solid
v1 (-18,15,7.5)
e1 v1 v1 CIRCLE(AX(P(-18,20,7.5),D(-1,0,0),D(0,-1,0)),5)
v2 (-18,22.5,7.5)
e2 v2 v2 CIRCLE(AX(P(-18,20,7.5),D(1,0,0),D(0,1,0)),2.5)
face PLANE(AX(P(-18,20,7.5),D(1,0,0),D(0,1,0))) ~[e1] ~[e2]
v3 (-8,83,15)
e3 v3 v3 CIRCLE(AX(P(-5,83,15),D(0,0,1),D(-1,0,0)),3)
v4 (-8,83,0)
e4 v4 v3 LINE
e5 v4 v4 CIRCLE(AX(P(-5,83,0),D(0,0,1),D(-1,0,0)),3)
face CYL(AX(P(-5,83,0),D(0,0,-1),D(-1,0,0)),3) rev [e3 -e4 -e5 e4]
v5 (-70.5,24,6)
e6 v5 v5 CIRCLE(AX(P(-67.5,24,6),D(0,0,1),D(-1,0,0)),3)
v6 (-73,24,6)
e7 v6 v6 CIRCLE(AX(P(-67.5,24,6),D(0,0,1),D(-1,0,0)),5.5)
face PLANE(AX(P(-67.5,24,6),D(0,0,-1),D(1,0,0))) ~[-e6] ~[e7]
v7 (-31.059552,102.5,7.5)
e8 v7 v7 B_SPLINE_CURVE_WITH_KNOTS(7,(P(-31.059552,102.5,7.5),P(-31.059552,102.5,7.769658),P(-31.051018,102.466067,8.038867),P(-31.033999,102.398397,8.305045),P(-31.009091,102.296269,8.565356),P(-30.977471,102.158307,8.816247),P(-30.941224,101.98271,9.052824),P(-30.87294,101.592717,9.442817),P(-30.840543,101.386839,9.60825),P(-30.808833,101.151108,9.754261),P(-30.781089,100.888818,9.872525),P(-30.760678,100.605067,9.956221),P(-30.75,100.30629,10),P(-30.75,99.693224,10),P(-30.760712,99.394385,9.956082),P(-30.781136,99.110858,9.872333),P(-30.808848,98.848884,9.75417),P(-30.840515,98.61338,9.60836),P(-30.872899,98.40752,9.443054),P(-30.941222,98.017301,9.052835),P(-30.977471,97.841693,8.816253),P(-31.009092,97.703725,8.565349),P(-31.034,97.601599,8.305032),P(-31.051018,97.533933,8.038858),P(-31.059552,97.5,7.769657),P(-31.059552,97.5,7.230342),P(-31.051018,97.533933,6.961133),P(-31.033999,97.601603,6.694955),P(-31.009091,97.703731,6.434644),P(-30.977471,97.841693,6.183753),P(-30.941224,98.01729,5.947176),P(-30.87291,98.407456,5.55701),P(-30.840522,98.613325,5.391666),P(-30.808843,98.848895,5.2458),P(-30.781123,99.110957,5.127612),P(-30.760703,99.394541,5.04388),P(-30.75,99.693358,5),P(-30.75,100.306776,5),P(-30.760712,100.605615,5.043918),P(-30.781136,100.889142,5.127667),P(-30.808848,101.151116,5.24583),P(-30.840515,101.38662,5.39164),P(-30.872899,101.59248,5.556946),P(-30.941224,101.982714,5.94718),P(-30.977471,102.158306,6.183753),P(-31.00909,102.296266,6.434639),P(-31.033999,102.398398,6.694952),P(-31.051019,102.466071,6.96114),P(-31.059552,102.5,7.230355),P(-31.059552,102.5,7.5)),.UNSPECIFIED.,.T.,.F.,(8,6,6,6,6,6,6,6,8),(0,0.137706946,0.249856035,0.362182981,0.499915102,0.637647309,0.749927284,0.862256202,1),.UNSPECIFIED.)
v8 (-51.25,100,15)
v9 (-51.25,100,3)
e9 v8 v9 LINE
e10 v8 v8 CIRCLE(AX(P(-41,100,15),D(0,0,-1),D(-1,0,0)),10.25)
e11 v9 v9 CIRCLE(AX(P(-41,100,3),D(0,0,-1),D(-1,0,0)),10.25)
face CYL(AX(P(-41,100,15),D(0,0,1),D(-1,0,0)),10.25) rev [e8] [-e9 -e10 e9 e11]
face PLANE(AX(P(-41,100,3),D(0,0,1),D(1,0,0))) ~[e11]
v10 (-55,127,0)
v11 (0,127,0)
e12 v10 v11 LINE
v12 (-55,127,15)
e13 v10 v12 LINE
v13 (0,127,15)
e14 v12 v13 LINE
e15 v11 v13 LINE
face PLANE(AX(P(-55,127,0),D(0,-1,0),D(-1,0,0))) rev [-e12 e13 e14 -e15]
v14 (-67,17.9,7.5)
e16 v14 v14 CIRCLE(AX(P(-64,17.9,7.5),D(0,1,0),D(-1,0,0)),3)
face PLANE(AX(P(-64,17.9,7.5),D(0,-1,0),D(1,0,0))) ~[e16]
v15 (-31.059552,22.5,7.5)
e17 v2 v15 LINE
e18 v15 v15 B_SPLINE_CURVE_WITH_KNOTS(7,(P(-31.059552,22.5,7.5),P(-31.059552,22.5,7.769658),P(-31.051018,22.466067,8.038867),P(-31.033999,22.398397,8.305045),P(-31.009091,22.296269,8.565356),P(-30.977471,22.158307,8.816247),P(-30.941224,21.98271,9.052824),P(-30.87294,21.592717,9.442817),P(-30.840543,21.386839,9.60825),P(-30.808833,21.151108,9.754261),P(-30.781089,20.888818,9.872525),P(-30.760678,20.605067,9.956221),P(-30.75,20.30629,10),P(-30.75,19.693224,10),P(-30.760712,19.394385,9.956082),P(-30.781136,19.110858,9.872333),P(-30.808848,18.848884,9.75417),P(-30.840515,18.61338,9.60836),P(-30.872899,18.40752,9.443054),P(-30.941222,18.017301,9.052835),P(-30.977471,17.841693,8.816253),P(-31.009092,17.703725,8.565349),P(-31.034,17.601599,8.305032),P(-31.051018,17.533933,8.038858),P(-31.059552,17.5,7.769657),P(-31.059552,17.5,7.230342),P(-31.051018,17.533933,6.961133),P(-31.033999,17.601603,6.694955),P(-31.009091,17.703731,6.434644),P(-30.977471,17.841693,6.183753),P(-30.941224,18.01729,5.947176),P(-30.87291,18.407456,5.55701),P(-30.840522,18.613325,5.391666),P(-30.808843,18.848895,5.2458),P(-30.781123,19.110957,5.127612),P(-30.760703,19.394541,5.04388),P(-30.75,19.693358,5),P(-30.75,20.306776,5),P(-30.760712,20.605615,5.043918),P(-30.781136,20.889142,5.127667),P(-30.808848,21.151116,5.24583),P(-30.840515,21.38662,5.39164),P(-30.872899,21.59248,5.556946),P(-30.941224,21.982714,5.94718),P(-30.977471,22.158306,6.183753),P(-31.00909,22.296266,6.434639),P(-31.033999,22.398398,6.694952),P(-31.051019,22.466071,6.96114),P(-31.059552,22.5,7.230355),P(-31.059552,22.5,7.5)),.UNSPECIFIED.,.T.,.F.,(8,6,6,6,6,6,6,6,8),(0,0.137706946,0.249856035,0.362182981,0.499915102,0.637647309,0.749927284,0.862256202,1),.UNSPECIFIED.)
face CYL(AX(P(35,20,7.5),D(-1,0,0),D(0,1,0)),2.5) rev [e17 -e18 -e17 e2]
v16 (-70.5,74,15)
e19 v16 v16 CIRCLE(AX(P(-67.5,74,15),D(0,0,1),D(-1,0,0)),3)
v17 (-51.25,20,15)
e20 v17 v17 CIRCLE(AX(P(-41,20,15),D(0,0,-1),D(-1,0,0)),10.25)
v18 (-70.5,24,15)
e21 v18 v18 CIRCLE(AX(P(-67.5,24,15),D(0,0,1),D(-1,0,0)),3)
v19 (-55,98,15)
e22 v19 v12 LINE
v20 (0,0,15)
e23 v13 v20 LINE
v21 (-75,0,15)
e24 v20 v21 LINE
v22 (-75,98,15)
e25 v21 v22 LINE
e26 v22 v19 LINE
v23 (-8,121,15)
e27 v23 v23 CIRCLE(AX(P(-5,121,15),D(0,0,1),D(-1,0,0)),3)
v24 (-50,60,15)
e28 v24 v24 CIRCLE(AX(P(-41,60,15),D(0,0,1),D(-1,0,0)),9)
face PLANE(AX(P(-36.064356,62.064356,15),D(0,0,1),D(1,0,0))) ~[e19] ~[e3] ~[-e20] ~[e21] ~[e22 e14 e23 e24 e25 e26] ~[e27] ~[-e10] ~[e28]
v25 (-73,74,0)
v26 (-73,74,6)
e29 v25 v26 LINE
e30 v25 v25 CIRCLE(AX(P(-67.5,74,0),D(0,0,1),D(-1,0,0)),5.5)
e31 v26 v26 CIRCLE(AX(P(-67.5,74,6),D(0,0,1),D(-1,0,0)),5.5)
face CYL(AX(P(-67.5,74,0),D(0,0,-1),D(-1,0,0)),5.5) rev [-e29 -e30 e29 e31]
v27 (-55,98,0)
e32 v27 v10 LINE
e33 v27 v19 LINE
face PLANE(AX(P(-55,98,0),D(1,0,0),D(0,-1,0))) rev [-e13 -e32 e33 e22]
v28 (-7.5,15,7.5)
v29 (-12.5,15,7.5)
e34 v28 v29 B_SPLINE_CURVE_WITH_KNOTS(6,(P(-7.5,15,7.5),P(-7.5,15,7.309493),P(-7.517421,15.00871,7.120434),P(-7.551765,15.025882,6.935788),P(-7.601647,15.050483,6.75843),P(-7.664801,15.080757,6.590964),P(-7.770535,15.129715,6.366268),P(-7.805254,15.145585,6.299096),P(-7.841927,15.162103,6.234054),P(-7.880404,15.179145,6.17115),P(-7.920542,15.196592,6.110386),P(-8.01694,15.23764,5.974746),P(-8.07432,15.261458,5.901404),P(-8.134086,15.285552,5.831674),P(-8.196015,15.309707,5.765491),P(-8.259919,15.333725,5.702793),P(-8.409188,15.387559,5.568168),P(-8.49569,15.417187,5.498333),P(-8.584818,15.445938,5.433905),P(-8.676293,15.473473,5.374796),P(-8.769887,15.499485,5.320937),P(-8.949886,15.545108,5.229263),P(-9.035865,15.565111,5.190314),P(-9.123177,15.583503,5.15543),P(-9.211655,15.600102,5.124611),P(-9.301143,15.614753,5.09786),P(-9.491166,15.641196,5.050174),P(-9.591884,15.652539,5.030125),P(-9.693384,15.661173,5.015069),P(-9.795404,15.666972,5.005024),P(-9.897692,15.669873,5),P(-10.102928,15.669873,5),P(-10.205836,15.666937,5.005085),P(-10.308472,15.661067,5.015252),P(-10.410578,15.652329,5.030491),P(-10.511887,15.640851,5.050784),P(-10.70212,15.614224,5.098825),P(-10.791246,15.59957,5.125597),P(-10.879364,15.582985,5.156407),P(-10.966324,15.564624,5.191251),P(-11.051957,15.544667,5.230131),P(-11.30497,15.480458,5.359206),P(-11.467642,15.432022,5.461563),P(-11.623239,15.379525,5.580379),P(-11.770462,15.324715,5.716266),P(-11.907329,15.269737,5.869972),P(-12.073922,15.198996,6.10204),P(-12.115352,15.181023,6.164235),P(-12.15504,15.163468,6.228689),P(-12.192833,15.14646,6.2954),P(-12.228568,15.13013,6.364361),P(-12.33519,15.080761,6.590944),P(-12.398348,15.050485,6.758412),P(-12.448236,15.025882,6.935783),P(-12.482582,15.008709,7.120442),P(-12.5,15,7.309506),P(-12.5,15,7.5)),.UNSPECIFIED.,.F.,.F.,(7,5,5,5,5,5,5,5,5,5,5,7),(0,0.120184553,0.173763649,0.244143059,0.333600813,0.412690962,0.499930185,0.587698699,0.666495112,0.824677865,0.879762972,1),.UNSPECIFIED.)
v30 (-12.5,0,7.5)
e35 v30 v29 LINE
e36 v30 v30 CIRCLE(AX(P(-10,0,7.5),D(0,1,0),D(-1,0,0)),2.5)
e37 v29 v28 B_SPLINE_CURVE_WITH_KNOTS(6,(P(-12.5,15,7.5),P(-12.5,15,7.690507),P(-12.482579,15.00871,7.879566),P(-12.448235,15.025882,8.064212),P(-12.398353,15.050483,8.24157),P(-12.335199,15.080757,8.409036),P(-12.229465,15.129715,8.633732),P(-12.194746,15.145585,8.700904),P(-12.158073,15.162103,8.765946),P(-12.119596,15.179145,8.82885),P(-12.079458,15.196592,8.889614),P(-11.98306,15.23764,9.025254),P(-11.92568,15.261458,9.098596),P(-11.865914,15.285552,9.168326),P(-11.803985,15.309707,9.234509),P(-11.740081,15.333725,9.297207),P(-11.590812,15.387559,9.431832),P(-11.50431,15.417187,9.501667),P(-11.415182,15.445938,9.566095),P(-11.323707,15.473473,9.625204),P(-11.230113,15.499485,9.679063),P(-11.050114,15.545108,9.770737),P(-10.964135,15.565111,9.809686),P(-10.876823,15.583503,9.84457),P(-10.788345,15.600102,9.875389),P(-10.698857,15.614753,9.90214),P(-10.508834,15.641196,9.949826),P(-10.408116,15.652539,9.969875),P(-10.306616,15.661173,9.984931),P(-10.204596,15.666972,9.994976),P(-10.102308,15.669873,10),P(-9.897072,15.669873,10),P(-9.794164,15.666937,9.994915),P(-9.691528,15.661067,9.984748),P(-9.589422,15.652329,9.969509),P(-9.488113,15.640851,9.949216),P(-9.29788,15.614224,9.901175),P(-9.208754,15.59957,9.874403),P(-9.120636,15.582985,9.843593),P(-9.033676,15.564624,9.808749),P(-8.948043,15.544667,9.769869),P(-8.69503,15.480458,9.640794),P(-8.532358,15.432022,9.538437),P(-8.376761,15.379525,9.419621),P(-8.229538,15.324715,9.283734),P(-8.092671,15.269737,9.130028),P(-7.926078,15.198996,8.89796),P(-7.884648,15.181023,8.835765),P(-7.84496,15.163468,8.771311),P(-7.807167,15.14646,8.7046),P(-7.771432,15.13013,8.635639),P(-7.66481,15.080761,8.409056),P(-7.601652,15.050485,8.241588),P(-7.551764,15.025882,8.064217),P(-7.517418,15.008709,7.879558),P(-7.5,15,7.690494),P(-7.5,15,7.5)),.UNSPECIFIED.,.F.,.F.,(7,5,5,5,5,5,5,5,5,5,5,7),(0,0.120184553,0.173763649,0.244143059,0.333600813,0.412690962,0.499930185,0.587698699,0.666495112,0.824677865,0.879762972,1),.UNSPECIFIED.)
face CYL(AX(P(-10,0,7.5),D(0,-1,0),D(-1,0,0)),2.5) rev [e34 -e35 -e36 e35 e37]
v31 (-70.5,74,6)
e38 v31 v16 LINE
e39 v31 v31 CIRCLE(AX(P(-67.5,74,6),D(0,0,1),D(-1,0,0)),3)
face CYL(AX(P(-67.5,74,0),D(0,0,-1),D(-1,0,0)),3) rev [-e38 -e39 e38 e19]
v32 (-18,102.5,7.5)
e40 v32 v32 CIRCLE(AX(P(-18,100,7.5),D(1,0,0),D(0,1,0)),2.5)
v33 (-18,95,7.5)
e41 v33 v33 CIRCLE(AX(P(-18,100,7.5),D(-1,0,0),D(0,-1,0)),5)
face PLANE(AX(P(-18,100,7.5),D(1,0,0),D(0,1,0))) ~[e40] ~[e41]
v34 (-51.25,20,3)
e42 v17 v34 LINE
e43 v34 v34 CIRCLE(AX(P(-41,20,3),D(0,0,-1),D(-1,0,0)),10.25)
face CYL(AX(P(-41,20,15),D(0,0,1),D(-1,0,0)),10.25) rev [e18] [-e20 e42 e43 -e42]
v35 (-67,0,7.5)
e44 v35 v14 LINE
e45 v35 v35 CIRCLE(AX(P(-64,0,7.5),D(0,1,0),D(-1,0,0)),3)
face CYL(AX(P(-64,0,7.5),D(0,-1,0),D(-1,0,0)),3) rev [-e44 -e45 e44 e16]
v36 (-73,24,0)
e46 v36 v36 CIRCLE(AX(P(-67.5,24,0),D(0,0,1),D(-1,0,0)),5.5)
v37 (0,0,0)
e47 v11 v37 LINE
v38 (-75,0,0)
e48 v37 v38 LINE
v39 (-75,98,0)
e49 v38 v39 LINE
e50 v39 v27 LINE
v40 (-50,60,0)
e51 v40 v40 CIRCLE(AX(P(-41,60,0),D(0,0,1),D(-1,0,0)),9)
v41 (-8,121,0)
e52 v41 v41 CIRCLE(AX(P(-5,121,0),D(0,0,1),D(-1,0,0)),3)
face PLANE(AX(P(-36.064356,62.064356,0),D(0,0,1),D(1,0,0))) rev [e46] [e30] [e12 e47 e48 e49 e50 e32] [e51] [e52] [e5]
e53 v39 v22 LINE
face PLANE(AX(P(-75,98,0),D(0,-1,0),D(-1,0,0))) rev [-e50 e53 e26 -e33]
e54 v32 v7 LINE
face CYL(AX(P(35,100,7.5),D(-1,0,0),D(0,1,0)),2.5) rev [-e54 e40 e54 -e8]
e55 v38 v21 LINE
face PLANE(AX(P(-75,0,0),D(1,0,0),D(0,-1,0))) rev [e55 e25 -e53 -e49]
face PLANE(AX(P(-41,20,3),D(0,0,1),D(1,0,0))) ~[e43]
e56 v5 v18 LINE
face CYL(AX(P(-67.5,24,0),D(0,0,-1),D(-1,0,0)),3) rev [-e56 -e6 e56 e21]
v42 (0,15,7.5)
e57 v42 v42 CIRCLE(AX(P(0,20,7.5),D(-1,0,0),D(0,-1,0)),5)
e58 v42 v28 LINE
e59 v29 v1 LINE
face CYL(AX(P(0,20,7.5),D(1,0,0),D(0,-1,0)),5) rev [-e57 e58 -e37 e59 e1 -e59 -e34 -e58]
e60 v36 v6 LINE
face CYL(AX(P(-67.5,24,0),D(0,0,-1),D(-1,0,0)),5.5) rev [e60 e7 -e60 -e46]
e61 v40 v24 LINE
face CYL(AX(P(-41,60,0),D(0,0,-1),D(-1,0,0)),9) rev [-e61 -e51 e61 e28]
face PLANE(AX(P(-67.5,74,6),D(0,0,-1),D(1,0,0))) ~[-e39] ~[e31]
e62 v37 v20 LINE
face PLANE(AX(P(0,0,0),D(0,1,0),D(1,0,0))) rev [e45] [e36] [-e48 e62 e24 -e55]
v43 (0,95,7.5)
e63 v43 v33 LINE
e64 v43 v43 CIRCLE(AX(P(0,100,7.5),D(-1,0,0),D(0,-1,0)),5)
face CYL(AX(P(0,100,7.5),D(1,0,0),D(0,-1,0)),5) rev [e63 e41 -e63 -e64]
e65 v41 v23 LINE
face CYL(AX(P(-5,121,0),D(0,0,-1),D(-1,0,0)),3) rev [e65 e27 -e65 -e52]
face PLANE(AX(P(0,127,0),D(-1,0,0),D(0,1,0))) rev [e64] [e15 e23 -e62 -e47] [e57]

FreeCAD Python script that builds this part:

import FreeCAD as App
import Part
import Sketcher


def add_polygon(sketch, points):
    """Adds a closed chain of lines whose ends are joined by coincident constraints."""
    first, n = sketch.GeometryCount, len(points)
    for a, b in zip(points, points[1:] + points[:1]):
        sketch.addGeometry(Part.LineSegment(App.Vector(*a, 0), App.Vector(*b, 0)), False)
    for i in range(n):
        sketch.addConstraint(Sketcher.Constraint("Coincident", first + i, 2, first + (i + 1) % n, 1))

doc = App.newDocument("Part")
body = doc.addObject("PartDesign::Body", "Body")

# Sketch on XY plane
sketch1 = doc.addObject("Sketcher::SketchObject", "Sketch")
body.addObject(sketch1)
sketch1.AttachmentSupport = (doc.XY_Plane, [""])
sketch1.MapMode = "FlatFace"
add_polygon(sketch1, [(0, 127), (0, 0), (75, 0), (75, 98), (55, 98), (55, 127)])  # lines 0-5
sketch1.addConstraint(Sketcher.Constraint("Vertical", 0))
sketch1.addConstraint(Sketcher.Constraint("Horizontal", 1))
sketch1.addConstraint(Sketcher.Constraint("Vertical", 2))
sketch1.addConstraint(Sketcher.Constraint("Horizontal", 3))
sketch1.addConstraint(Sketcher.Constraint("Vertical", 4))
sketch1.addConstraint(Sketcher.Constraint("Horizontal", 5))
sketch1.addConstraint(Sketcher.Constraint("Coincident", 0, 2, -1, 1))
sketch1.addConstraint(Sketcher.Constraint("DistanceX", 1, 1, 1, 2, 75.0))
sketch1.addConstraint(Sketcher.Constraint("DistanceX", 3, 2, 3, 1, 20.0))
sketch1.addConstraint(Sketcher.Constraint("DistanceY", 0, 2, 0, 1, 127.0))
sketch1.addConstraint(Sketcher.Constraint("DistanceY", 2, 1, 2, 2, 98.0))
pad1 = doc.addObject("PartDesign::Pad", "Pad")
body.addObject(pad1)
pad1.Profile = sketch1
pad1.Length = 15

# Sketch on XY plane
sketch2 = doc.addObject("Sketcher::SketchObject", "Sketch001")
body.addObject(sketch2)
sketch2.AttachmentSupport = (doc.XY_Plane, [""])
sketch2.MapMode = "FlatFace"
sketch2.addGeometry(Part.Circle(App.Vector(5, 121, 0), App.Vector(0, 0, 1), 3), False)
sketch2.addGeometry(Part.Circle(App.Vector(5, 83, 0), App.Vector(0, 0, 1), 3), False)
sketch2.addGeometry(Part.Circle(App.Vector(41, 60, 0), App.Vector(0, 0, 1), 9), False)
sketch2.addGeometry(Part.Circle(App.Vector(67.5, 24, 0), App.Vector(0, 0, 1), 3), False)
sketch2.addGeometry(Part.Circle(App.Vector(67.5, 74, 0), App.Vector(0, 0, 1), 3), False)
sketch2.addConstraint(Sketcher.Constraint("Equal", 0, 1))
sketch2.addConstraint(Sketcher.Constraint("Equal", 1, 3))
sketch2.addConstraint(Sketcher.Constraint("Equal", 3, 4))
sketch2.addConstraint(Sketcher.Constraint("Vertical", 0, 3, 1, 3))
sketch2.addConstraint(Sketcher.Constraint("Vertical", 3, 3, 4, 3))
sketch2.addConstraint(Sketcher.Constraint("Diameter", 0, 6.0))
sketch2.addConstraint(Sketcher.Constraint("Diameter", 2, 18.0))
sketch2.addConstraint(Sketcher.Constraint("DistanceX", -1, 1, 0, 3, 5.0))
sketch2.addConstraint(Sketcher.Constraint("DistanceY", -1, 1, 0, 3, 121.0))
sketch2.addConstraint(Sketcher.Constraint("DistanceY", -1, 1, 1, 3, 83.0))
sketch2.addConstraint(Sketcher.Constraint("DistanceX", -1, 1, 2, 3, 41.0))
sketch2.addConstraint(Sketcher.Constraint("DistanceY", -1, 1, 2, 3, 60.0))
sketch2.addConstraint(Sketcher.Constraint("DistanceY", -1, 1, 3, 3, 24.0))
sketch2.addConstraint(Sketcher.Constraint("DistanceY", -1, 1, 4, 3, 74.0))
sketch2.addConstraint(Sketcher.Constraint("DistanceX", -1, 1, 3, 3, 67.5))
pocket1 = doc.addObject("PartDesign::Pocket", "Pocket")
body.addObject(pocket1)
pocket1.Profile = sketch2
pocket1.Type = "ThroughAll"
pocket1.Reversed = True

# Sketch on XY plane
sketch3 = doc.addObject("Sketcher::SketchObject", "Sketch002")
body.addObject(sketch3)
sketch3.AttachmentSupport = (doc.XY_Plane, [""])
sketch3.MapMode = "FlatFace"
sketch3.addGeometry(Part.Circle(App.Vector(67.5, 74, 0), App.Vector(0, 0, 1), 5.5), False)
sketch3.addGeometry(Part.Circle(App.Vector(67.5, 24, 0), App.Vector(0, 0, 1), 5.5), False)
sketch3.addConstraint(Sketcher.Constraint("Equal", 0, 1))
sketch3.addConstraint(Sketcher.Constraint("Vertical", 0, 3, 1, 3))
sketch3.addConstraint(Sketcher.Constraint("Diameter", 0, 11.0))
sketch3.addConstraint(Sketcher.Constraint("DistanceY", -1, 1, 0, 3, 74.0))
sketch3.addConstraint(Sketcher.Constraint("DistanceY", -1, 1, 1, 3, 24.0))
sketch3.addConstraint(Sketcher.Constraint("DistanceX", -1, 1, 0, 3, 67.5))
pocket2 = doc.addObject("PartDesign::Pocket", "Pocket001")
body.addObject(pocket2)
pocket2.Profile = sketch3
pocket2.Length = 6
pocket2.Reversed = True

# Sketch on XY plane
sketch4 = doc.addObject("Sketcher::SketchObject", "Sketch003")
body.addObject(sketch4)
sketch4.AttachmentSupport = (doc.XY_Plane, [""])
sketch4.MapMode = "FlatFace"
sketch4.AttachmentOffset = App.Placement(App.Vector(0, 0, 15), App.Rotation())
sketch4.addGeometry(Part.Circle(App.Vector(41, 100, 0), App.Vector(0, 0, 1), 10.25), False)
sketch4.addGeometry(Part.Circle(App.Vector(41, 20, 0), App.Vector(0, 0, 1), 10.25), False)
sketch4.addConstraint(Sketcher.Constraint("Equal", 0, 1))
sketch4.addConstraint(Sketcher.Constraint("Vertical", 0, 3, 1, 3))
sketch4.addConstraint(Sketcher.Constraint("Diameter", 0, 20.5))
sketch4.addConstraint(Sketcher.Constraint("DistanceX", -1, 1, 0, 3, 41.0))
sketch4.addConstraint(Sketcher.Constraint("DistanceY", -1, 1, 0, 3, 100.0))
sketch4.addConstraint(Sketcher.Constraint("DistanceY", -1, 1, 1, 3, 20.0))
pocket3 = doc.addObject("PartDesign::Pocket", "Pocket002")
body.addObject(pocket3)
pocket3.Profile = sketch4
pocket3.Length = 12

# Sketch on YZ plane
sketch5 = doc.addObject("Sketcher::SketchObject", "Sketch004")
body.addObject(sketch5)
sketch5.AttachmentSupport = (doc.YZ_Plane, [""])
sketch5.MapMode = "FlatFace"
sketch5.addGeometry(Part.Circle(App.Vector(100, 7.5, 0), App.Vector(0, 0, 1), 2.5), False)
sketch5.addGeometry(Part.Circle(App.Vector(20, 7.5, 0), App.Vector(0, 0, 1), 2.5), False)
sketch5.addConstraint(Sketcher.Constraint("Equal", 0, 1))
sketch5.addConstraint(Sketcher.Constraint("Horizontal", 0, 3, 1, 3))
sketch5.addConstraint(Sketcher.Constraint("Diameter", 0, 5.0))
sketch5.addConstraint(Sketcher.Constraint("DistanceX", -1, 1, 0, 3, 100.0))
sketch5.addConstraint(Sketcher.Constraint("DistanceX", -1, 1, 1, 3, 20.0))
sketch5.addConstraint(Sketcher.Constraint("DistanceY", -1, 1, 0, 3, 7.5))
doc.recompute()
hole = doc.addObject("PartDesign::Hole", "Hole")
body.addObject(hole)
hole.Profile = sketch5
hole.ThreadType = "None"
hole.Diameter = 5
hole.DepthType = "Dimension"
hole.Depth = 35
hole.DrillPoint = "Flat"
hole.Reversed = True

# Sketch on YZ plane
sketch6 = doc.addObject("Sketcher::SketchObject", "Sketch005")
body.addObject(sketch6)
sketch6.AttachmentSupport = (doc.YZ_Plane, [""])
sketch6.MapMode = "FlatFace"
sketch6.addGeometry(Part.Circle(App.Vector(100, 7.5, 0), App.Vector(0, 0, 1), 5), False)
sketch6.addGeometry(Part.Circle(App.Vector(100, 7.5, 0), App.Vector(0, 0, 1), 2.5), False)
sketch6.addGeometry(Part.Circle(App.Vector(20, 7.5, 0), App.Vector(0, 0, 1), 5), False)
sketch6.addGeometry(Part.Circle(App.Vector(20, 7.5, 0), App.Vector(0, 0, 1), 2.5), False)
sketch6.addConstraint(Sketcher.Constraint("Coincident", 1, 3, 0, 3))
sketch6.addConstraint(Sketcher.Constraint("Coincident", 3, 3, 2, 3))
sketch6.addConstraint(Sketcher.Constraint("Equal", 0, 2))
sketch6.addConstraint(Sketcher.Constraint("Equal", 1, 3))
sketch6.addConstraint(Sketcher.Constraint("Horizontal", 1, 3, 2, 3))
sketch6.addConstraint(Sketcher.Constraint("Diameter", 0, 10.0))
sketch6.addConstraint(Sketcher.Constraint("Diameter", 1, 5.0))
sketch6.addConstraint(Sketcher.Constraint("DistanceX", -1, 1, 0, 3, 100.0))
sketch6.addConstraint(Sketcher.Constraint("DistanceX", -1, 1, 2, 3, 20.0))
sketch6.addConstraint(Sketcher.Constraint("DistanceY", -1, 1, 0, 3, 7.5))
pocket4 = doc.addObject("PartDesign::Pocket", "Pocket003")
body.addObject(pocket4)
pocket4.Profile = sketch6
pocket4.Length = 18
pocket4.Reversed = True

# Sketch on XZ plane
sketch7 = doc.addObject("Sketcher::SketchObject", "Sketch006")
body.addObject(sketch7)
sketch7.AttachmentSupport = (doc.XZ_Plane, [""])
sketch7.MapMode = "FlatFace"
sketch7.addGeometry(Part.Circle(App.Vector(64, 7.5, 0), App.Vector(0, 0, 1), 3), False)
sketch7.addGeometry(Part.Circle(App.Vector(10, 7.5, 0), App.Vector(0, 0, 1), 2.5), False)
sketch7.addConstraint(Sketcher.Constraint("Horizontal", 0, 3, 1, 3))
sketch7.addConstraint(Sketcher.Constraint("Diameter", 0, 6.0))
sketch7.addConstraint(Sketcher.Constraint("Diameter", 1, 5.0))
sketch7.addConstraint(Sketcher.Constraint("DistanceX", -1, 1, 0, 3, 64.0))
sketch7.addConstraint(Sketcher.Constraint("DistanceX", -1, 1, 1, 3, 10.0))
sketch7.addConstraint(Sketcher.Constraint("DistanceY", -1, 1, 0, 3, 7.5))
pocket5 = doc.addObject("PartDesign::Pocket", "Pocket004")
body.addObject(pocket5)
pocket5.Profile = sketch7
pocket5.Length = 17.9
body2 = doc.addObject("PartDesign::Body", "Body001")
doc.recompute()

mirroring = doc.addObject("Part::Mirroring", "Mirroring")
mirroring.Source = body
mirroring.Base = App.Vector(0, 63.814533, 7.5)
mirroring.Normal = App.Vector(-1, 0, 0)
body2.BaseFeature = mirroring
doc.recompute()
body.Visibility = False
mirroring.Visibility = False

doc.recompute()
